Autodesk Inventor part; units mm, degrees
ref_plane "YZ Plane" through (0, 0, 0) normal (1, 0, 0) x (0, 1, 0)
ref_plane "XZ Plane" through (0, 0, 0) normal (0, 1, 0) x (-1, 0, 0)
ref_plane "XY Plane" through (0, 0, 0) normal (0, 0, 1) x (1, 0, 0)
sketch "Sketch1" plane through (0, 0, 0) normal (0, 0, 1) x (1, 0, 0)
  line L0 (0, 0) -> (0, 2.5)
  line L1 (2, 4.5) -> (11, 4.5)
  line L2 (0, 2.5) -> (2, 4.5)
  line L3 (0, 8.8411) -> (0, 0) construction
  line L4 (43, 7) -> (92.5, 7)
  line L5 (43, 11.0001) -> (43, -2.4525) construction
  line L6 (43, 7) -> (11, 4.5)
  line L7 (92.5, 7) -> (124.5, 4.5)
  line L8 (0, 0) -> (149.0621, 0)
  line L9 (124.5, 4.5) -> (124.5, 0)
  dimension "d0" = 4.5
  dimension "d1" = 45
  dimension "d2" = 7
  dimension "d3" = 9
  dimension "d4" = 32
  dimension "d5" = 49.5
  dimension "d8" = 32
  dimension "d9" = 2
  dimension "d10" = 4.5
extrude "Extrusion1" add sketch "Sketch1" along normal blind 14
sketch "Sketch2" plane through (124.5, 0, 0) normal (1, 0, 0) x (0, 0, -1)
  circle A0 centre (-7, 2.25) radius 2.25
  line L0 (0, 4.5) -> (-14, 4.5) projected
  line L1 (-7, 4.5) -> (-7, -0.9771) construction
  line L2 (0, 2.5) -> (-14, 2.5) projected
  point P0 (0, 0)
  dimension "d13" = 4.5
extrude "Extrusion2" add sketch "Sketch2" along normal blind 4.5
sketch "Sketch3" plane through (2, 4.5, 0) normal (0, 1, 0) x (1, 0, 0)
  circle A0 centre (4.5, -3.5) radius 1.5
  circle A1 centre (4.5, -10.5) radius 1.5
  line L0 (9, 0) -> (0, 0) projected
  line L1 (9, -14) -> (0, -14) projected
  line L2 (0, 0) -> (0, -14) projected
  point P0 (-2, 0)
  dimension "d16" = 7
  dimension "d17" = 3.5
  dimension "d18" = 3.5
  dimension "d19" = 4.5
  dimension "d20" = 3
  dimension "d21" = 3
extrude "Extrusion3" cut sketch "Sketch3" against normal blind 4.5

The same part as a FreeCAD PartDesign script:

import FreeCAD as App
import Part
import Sketcher

V = App.Vector

doc = App.newDocument("Part")
body = doc.addObject("PartDesign::Body", "Body")

sketch1 = body.newObject("Sketcher::SketchObject", "Sketch")
sketch1.AttachmentSupport = (doc.getObject("XY_Plane"), [""])
sketch1.MapMode = "FlatFace"
sketch1.addGeometry([
    Part.LineSegment(V(0, 2.5, 0), V(0, 0, 0)),
    Part.LineSegment(V(0, 0, 0), V(124.5, 0, 0)),
    Part.LineSegment(V(124.5, 0, 0), V(124.5, 4.5, 0)),
    Part.LineSegment(V(124.5, 4.5, 0), V(92.5, 7, 0)),
    Part.LineSegment(V(92.5, 7, 0), V(43, 7, 0)),
    Part.LineSegment(V(43, 7, 0), V(11, 4.5, 0)),
    Part.LineSegment(V(11, 4.5, 0), V(2, 4.5, 0)),
    Part.LineSegment(V(2, 4.5, 0), V(0, 2.5, 0)),
], False)
sketch1.addConstraint([
    Sketcher.Constraint("Coincident", 0, 2, 1, 1),
    Sketcher.Constraint("Coincident", 1, 2, 2, 1),
    Sketcher.Constraint("Coincident", 2, 2, 3, 1),
    Sketcher.Constraint("Coincident", 3, 2, 4, 1),
    Sketcher.Constraint("Coincident", 4, 2, 5, 1),
    Sketcher.Constraint("Coincident", 5, 2, 6, 1),
    Sketcher.Constraint("Coincident", 6, 2, 7, 1),
    Sketcher.Constraint("Coincident", 7, 2, 0, 1),
    Sketcher.Constraint("Vertical", 0),
    Sketcher.Constraint("Horizontal", 1),
    Sketcher.Constraint("Vertical", 2),
    Sketcher.Constraint("Horizontal", 4),
    Sketcher.Constraint("Horizontal", 6),
    Sketcher.Constraint("Coincident", 0, 2, -1, 1),
    Sketcher.Constraint("Horizontal", 2, 2, 5, 2),
    Sketcher.Constraint("Equal", 3, 5),
    Sketcher.Constraint("DistanceX", 6, 2, 6, 1, 9.0),
    Sketcher.Constraint("DistanceX", 4, 2, 4, 1, 49.5),
    Sketcher.Constraint("DistanceY", 2, 1, 2, 2, 4.5),
    Sketcher.Constraint("DistanceY", -1, 1, 3, 2, 7.0),
    Sketcher.Constraint("DistanceX", -1, 1, 6, 2, 2.0),
    Sketcher.Constraint("DistanceX", 3, 2, 2, 2, 32.0),
    Sketcher.Constraint("DistanceY", 7, 2, 6, 2, 2.0),
])
pad1 = body.newObject("PartDesign::Pad", "Pad")
pad1.Profile = sketch1
pad1.Length = 14

sketch2 = body.newObject("Sketcher::SketchObject", "Sketch001")
sketch2.AttachmentSupport = (doc.getObject("YZ_Plane"), [""])
sketch2.MapMode = "FlatFace"
sketch2.AttachmentOffset = App.Placement(V(0, 0, 124.5), App.Rotation())
sketch2.addGeometry(Part.Circle(V(2.2, 7, 0), V(0, 0, 1), 2.2), False)
sketch2.addConstraint([
    Sketcher.Constraint("Diameter", 0, 4.5),
    Sketcher.Constraint("DistanceY", -1, 1, 0, 3, 7.0),
    Sketcher.Constraint("DistanceX", -1, 1, 0, 3, 2.25),
])
pad2 = body.newObject("PartDesign::Pad", "Pad001")
pad2.Profile = sketch2
pad2.Length = 4.5

sketch3 = body.newObject("Sketcher::SketchObject", "Sketch002")
sketch3.AttachmentSupport = (doc.getObject("XZ_Plane"), [""])
sketch3.MapMode = "FlatFace"
sketch3.AttachmentOffset = App.Placement(V(0, 0, -4.5), App.Rotation())
sketch3.addGeometry([
    Part.Circle(V(6.5, 3.5, 0), V(0, 0, 1), 1.5),
    Part.Circle(V(6.5, 10.5, 0), V(0, 0, 1), 1.5),
], False)
sketch3.addConstraint([
    Sketcher.Constraint("Equal", 0, 1),
    Sketcher.Constraint("Vertical", 0, 3, 1, 3),
    Sketcher.Constraint("Diameter", 0, 3.0),
    Sketcher.Constraint("DistanceY", 0, 3, 1, 3, 7.0),
    Sketcher.Constraint("DistanceY", -1, 1, 0, 3, 3.5),
    Sketcher.Constraint("DistanceX", -1, 1, 0, 3, 6.5),
])
pocket1 = body.newObject("PartDesign::Pocket", "Pocket")
pocket1.Profile = sketch3
pocket1.Length = 4.5
pocket1.Reversed = True

doc.recompute()
